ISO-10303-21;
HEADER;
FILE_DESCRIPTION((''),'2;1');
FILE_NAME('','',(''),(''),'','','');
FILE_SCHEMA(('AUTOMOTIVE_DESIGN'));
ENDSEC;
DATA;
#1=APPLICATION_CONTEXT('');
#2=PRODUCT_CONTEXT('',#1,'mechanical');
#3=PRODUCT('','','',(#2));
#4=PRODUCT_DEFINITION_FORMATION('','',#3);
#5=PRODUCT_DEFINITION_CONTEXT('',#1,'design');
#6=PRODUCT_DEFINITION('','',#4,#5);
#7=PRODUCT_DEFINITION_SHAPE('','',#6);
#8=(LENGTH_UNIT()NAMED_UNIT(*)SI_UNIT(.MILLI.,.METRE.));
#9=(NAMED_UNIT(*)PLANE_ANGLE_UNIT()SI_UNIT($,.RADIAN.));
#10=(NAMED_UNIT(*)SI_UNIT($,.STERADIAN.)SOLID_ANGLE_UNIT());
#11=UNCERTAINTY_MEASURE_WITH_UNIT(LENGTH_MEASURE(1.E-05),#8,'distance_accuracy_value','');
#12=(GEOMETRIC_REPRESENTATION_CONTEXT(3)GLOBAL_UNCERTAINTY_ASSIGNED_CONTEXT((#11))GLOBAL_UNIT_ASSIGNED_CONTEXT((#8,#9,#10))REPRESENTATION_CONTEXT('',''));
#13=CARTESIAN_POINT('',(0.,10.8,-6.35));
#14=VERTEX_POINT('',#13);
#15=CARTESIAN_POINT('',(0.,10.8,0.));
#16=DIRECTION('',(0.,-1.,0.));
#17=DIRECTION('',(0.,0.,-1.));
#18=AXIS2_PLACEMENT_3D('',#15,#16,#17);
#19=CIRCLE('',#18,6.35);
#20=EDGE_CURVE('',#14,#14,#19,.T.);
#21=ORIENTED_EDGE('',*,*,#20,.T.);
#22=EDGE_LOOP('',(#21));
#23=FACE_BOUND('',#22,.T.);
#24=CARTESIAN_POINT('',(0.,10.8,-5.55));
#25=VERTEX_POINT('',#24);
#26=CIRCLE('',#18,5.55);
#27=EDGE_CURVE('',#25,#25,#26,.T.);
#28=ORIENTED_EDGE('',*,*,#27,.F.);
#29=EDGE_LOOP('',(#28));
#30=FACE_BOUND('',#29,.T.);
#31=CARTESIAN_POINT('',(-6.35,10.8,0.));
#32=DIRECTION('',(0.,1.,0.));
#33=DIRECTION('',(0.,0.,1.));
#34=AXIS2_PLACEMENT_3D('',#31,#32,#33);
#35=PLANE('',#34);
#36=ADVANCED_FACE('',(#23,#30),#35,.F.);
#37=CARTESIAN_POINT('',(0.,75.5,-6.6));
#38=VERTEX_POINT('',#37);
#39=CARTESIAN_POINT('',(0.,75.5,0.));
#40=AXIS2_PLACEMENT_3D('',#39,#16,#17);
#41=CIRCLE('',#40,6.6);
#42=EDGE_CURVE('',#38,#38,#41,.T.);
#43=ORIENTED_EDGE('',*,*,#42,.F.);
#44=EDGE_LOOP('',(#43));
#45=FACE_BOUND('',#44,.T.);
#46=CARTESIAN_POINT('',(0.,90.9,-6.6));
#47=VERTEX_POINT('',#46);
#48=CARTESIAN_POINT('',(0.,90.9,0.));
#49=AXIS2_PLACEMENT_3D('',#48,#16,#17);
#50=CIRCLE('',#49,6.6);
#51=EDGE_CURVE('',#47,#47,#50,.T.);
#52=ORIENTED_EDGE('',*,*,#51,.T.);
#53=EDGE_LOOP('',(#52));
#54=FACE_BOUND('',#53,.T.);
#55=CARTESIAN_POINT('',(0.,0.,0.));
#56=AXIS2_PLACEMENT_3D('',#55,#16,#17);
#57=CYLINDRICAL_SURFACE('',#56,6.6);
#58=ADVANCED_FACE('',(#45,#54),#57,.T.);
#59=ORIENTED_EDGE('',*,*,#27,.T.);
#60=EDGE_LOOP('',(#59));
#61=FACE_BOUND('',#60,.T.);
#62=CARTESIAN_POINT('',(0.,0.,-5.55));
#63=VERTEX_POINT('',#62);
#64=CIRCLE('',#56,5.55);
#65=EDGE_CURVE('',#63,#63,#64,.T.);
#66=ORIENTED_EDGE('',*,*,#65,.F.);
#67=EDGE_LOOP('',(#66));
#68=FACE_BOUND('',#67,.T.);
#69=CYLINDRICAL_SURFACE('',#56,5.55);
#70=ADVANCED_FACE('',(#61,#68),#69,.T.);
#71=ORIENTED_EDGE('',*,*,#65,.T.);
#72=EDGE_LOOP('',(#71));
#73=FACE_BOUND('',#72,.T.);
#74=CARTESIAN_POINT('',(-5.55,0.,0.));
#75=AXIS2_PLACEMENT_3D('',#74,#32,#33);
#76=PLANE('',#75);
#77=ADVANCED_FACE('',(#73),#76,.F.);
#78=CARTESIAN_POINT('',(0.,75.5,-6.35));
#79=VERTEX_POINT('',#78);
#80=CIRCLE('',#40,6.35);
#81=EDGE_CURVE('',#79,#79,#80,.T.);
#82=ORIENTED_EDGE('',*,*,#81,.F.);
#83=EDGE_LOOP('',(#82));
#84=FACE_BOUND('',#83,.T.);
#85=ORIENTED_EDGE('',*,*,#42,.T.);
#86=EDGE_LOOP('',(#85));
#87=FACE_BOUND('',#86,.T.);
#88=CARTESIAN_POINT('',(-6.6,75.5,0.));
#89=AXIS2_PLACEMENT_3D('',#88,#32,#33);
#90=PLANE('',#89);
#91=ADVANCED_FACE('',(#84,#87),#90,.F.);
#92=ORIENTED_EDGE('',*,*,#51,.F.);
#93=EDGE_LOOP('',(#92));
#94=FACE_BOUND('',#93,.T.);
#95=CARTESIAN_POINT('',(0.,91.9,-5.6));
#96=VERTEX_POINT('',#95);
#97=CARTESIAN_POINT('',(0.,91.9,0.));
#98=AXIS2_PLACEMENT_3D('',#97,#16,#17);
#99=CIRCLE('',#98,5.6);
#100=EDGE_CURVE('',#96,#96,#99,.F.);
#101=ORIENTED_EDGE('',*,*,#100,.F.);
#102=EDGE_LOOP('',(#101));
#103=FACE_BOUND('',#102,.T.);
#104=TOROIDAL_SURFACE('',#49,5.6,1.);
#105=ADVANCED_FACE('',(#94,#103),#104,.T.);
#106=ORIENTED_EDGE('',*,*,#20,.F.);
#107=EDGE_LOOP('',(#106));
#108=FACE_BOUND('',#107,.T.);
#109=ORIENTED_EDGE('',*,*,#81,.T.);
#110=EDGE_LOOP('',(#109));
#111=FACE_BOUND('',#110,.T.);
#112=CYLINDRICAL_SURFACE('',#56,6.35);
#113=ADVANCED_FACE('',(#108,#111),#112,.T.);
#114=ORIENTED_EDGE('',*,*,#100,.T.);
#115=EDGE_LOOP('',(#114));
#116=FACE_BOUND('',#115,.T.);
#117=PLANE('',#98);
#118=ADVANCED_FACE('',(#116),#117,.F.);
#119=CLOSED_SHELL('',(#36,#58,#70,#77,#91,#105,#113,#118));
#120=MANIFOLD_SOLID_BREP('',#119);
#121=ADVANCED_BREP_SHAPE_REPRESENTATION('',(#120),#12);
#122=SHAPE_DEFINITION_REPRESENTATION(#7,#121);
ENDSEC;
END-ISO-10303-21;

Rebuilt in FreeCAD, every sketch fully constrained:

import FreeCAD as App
import Part
import Sketcher
from FreeCAD import Vector


def edges_at(feature, points):
    """Names of the edges that pass closest to the given points."""
    edges = feature.Shape.Edges
    near = lambda p: min(range(len(edges)), key=lambda i: edges[i].distToShape(Part.Vertex(*p))[0])
    return sorted({f"Edge{near(p) + 1}" for p in points})

doc = App.newDocument("Part")
body = doc.addObject("PartDesign::Body", "Body")

# Sketch on XY plane
sketch1 = body.newObject("Sketcher::SketchObject", "Sketch")
sketch1.AttachmentSupport = (doc.getObject("XY_Plane"), [""])
sketch1.MapMode = "FlatFace"
sketch1.addGeometry(Part.LineSegment(Vector(0, 0, 0), Vector(0, 91.9, 0)), False)
sketch1.addGeometry(Part.LineSegment(Vector(0, 91.9, 0), Vector(-6.6, 91.9, 0)), False)
sketch1.addGeometry(Part.LineSegment(Vector(-6.6, 91.9, 0), Vector(-6.6, 75.5, 0)), False)
sketch1.addGeometry(Part.LineSegment(Vector(-6.6, 75.5, 0), Vector(-6.35, 75.5, 0)), False)
sketch1.addGeometry(Part.LineSegment(Vector(-6.35, 75.5, 0), Vector(-6.35, 10.8, 0)), False)
sketch1.addGeometry(Part.LineSegment(Vector(-6.35, 10.8, 0), Vector(-5.55, 10.8, 0)), False)
sketch1.addGeometry(Part.LineSegment(Vector(-5.55, 10.8, 0), Vector(-5.55, 0, 0)), False)
sketch1.addGeometry(Part.LineSegment(Vector(-5.55, 0, 0), Vector(0, 0, 0)), False)
sketch1.addConstraint(Sketcher.Constraint("Coincident", 0, 2, 1, 1))
sketch1.addConstraint(Sketcher.Constraint("Coincident", 1, 2, 2, 1))
sketch1.addConstraint(Sketcher.Constraint("Coincident", 2, 2, 3, 1))
sketch1.addConstraint(Sketcher.Constraint("Coincident", 3, 2, 4, 1))
sketch1.addConstraint(Sketcher.Constraint("Coincident", 4, 2, 5, 1))
sketch1.addConstraint(Sketcher.Constraint("Coincident", 5, 2, 6, 1))
sketch1.addConstraint(Sketcher.Constraint("Coincident", 6, 2, 7, 1))
sketch1.addConstraint(Sketcher.Constraint("Coincident", 7, 2, 0, 1))
sketch1.addConstraint(Sketcher.Constraint("Vertical", 0))
sketch1.addConstraint(Sketcher.Constraint("Horizontal", 1))
sketch1.addConstraint(Sketcher.Constraint("Vertical", 2))
sketch1.addConstraint(Sketcher.Constraint("Horizontal", 3))
sketch1.addConstraint(Sketcher.Constraint("Vertical", 4))
sketch1.addConstraint(Sketcher.Constraint("Horizontal", 5))
sketch1.addConstraint(Sketcher.Constraint("Vertical", 6))
sketch1.addConstraint(Sketcher.Constraint("Horizontal", 7))
sketch1.addConstraint(Sketcher.Constraint("Coincident", 7, 2, -1, 1))
sketch1.addConstraint(Sketcher.Constraint("DistanceX", 1, 2, 1, 1, 6.6))
sketch1.addConstraint(Sketcher.Constraint("DistanceX", 5, 1, 5, 2, 0.8))
sketch1.addConstraint(Sketcher.Constraint("DistanceY", 0, 1, 0, 2, 91.9))
sketch1.addConstraint(Sketcher.Constraint("DistanceY", 2, 2, 2, 1, 16.4))
sketch1.addConstraint(Sketcher.Constraint("DistanceY", 4, 2, 4, 1, 64.7))
sketch1.addConstraint(Sketcher.Constraint("DistanceX", 3, 1, 3, 2, 0.25))
revolution = body.newObject("PartDesign::Revolution", "Revolution")
revolution.Profile = sketch1
revolution.ReferenceAxis = (sketch1, ["V_Axis"])
revolution.Angle = 360
doc.recompute()

fillet = body.newObject("PartDesign::Fillet", "Fillet")
fillet.Base = (revolution, edges_at(revolution, [(0, 91.9, 6.6)]))
fillet.Radius = 1

doc.recompute()
